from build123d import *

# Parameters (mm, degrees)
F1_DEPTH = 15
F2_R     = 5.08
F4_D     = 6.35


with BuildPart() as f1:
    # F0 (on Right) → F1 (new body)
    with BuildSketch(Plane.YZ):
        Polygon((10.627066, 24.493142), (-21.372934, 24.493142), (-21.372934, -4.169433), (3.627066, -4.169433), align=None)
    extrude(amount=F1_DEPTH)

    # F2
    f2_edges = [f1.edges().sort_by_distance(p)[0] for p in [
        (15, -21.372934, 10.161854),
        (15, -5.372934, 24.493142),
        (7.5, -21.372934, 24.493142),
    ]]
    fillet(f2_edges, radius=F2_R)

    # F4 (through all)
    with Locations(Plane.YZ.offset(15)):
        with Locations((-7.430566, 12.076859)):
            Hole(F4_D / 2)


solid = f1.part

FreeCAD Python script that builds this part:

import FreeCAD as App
import Part
import Sketcher


def edges_at(feature, points):
    """Names of the edges that pass closest to the given points."""
    edges = feature.Shape.Edges
    near = lambda p: min(range(len(edges)), key=lambda i: edges[i].distToShape(Part.Vertex(*p))[0])
    return sorted({f"Edge{near(p) + 1}" for p in points})


def add_polygon(sketch, points):
    """Adds a closed chain of lines whose ends are joined by coincident constraints."""
    first, n = sketch.GeometryCount, len(points)
    for a, b in zip(points, points[1:] + points[:1]):
        sketch.addGeometry(Part.LineSegment(App.Vector(*a, 0), App.Vector(*b, 0)), False)
    for i in range(n):
        sketch.addConstraint(Sketcher.Constraint("Coincident", first + i, 2, first + (i + 1) % n, 1))

doc = App.newDocument("Part")
params = doc.addObject("Spreadsheet::Sheet", "Params")
for row, (alias, value) in enumerate([
    ("sketch1_width", "32 mm"),
    ("sketch1_width2", "25 mm"),
    ("pad1_length", "15 mm"),
    ("fillet_radius", "5.08 mm"),
    ("sketch2_diameter", "6.35 mm"),
    ("hole_diameter", "6.35 mm"),
], start=1):
    params.set(f"A{row}", alias)
    params.set(f"B{row}", "=" + value)
    params.setAlias(f"B{row}", alias)

body = doc.addObject("PartDesign::Body", "Body")

sketch1 = doc.addObject("Sketcher::SketchObject", "Sketch")
body.addObject(sketch1)
sketch1.AttachmentSupport = (doc.YZ_Plane, [""])
sketch1.MapMode = "FlatFace"
add_polygon(sketch1, [(11, 24), (-21, 24), (-21, -4), (4, -4)])
sketch1.addConstraint(Sketcher.Constraint("Horizontal", 0))
sketch1.addConstraint(Sketcher.Constraint("Vertical", 1))
sketch1.addConstraint(Sketcher.Constraint("Horizontal", 2))
sketch1.addConstraint(Sketcher.Constraint("DistanceX", 0, 2, 0, 1, 32.0))
sketch1.addConstraint(Sketcher.Constraint("DistanceX", 2, 1, 2, 2, 25.0))
sketch1.addConstraint(Sketcher.Constraint("Distance", 3, 29.504969))
sketch1.addConstraint(Sketcher.Constraint("DistanceY", -1, 1, 0, 2, 24.493142))
sketch1.addConstraint(Sketcher.Constraint("DistanceX", 0, 2, -1, 1, 21.372934))
sketch1.setExpression("Constraints[7]", "Params.sketch1_width")
sketch1.setExpression("Constraints[8]", "Params.sketch1_width2")
pad1 = doc.addObject("PartDesign::Pad", "Pad")
body.addObject(pad1)
pad1.Profile = sketch1
pad1.setExpression("Length", "Params.pad1_length")
doc.recompute()

fillet = doc.addObject("PartDesign::Fillet", "Fillet")
body.addObject(fillet)
fillet.Base = (pad1, edges_at(pad1, [(15, -21.373, 10.162), (15, -5.373, 24.493), (7.5, -21.373, 24.493)]))
fillet.setExpression("Radius", "Params.fillet_radius")

sketch2 = doc.addObject("Sketcher::SketchObject", "Sketch001")
body.addObject(sketch2)
sketch2.AttachmentSupport = (doc.YZ_Plane, [""])
sketch2.MapMode = "FlatFace"
sketch2.AttachmentOffset = App.Placement(App.Vector(0, 0, 15), App.Rotation())
sketch2.addGeometry(Part.Circle(App.Vector(-7.4, 12.1, 0), App.Vector(0, 0, 1), 3.2), False)
sketch2.addConstraint(Sketcher.Constraint("Diameter", 0, 6.35))
sketch2.addConstraint(Sketcher.Constraint("DistanceY", -1, 1, 0, 3, 12.076859))
sketch2.addConstraint(Sketcher.Constraint("DistanceX", 0, 3, -1, 1, 7.430566))
sketch2.setExpression("Constraints[0]", "Params.sketch2_diameter")
doc.recompute()
hole = doc.addObject("PartDesign::Hole", "Hole")
body.addObject(hole)
hole.Profile = sketch2
hole.ThreadType = "None"
hole.setExpression("Diameter", "Params.hole_diameter")
hole.DepthType = "ThroughAll"

doc.recompute()
